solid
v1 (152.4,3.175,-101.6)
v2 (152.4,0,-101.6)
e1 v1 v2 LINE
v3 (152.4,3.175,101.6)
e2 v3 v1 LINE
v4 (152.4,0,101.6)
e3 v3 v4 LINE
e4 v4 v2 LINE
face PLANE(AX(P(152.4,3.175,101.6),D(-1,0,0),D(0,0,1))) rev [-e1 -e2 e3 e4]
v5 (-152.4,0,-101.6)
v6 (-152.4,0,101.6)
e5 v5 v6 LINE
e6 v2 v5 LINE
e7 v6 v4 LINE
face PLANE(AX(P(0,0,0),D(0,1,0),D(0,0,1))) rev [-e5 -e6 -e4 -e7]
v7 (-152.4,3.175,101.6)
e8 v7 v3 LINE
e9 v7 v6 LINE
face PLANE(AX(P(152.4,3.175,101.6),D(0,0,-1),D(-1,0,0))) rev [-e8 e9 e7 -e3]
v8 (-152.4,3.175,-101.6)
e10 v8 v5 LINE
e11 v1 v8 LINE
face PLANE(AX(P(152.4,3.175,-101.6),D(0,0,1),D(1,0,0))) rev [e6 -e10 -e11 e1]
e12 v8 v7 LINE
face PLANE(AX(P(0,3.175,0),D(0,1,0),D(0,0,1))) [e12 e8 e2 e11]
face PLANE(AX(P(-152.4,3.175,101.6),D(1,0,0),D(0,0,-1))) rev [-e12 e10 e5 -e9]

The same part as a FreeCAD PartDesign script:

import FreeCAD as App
import Part
import Sketcher

V = App.Vector
Q = App.Units.Quantity

doc = App.newDocument("Part")
body = doc.addObject("PartDesign::Body", "Body")

# Sketch on XZ plane
sketch1 = body.newObject("Sketcher::SketchObject", "Sketch")
sketch1.AttachmentSupport = (doc.getObject("XZ_Plane"), [""])
sketch1.MapMode = "FlatFace"
sketch1.addGeometry(Part.LineSegment(V(-152, -102, 0), V(-152, 102, 0)), False)
sketch1.addGeometry(Part.LineSegment(V(-152, 102, 0), V(152, 102, 0)), False)
sketch1.addGeometry(Part.LineSegment(V(152, 102, 0), V(152, -102, 0)), False)
sketch1.addGeometry(Part.LineSegment(V(152, -102, 0), V(-152, -102, 0)), False)
sketch1.addConstraint(Sketcher.Constraint("Coincident", 0, 2, 1, 1))
sketch1.addConstraint(Sketcher.Constraint("Coincident", 1, 2, 2, 1))
sketch1.addConstraint(Sketcher.Constraint("Coincident", 2, 2, 3, 1))
sketch1.addConstraint(Sketcher.Constraint("Coincident", 3, 2, 0, 1))
sketch1.addConstraint(Sketcher.Constraint("Vertical", 0))
sketch1.addConstraint(Sketcher.Constraint("Horizontal", 1))
sketch1.addConstraint(Sketcher.Constraint("Vertical", 2))
sketch1.addConstraint(Sketcher.Constraint("Horizontal", 3))
sketch1.addConstraint(Sketcher.Constraint("Symmetric", 0, 2, 2, 2, -1, 1))
sketch1.addConstraint(Sketcher.Constraint("DistanceX", 1, 1, 1, 2, Q("12 in")))
sketch1.addConstraint(Sketcher.Constraint("DistanceY", 0, 1, 0, 2, Q("8 in")))
pad1 = body.newObject("PartDesign::Pad", "Pad")
pad1.Profile = sketch1
pad1.Length = Q("0.125 in")
pad1.Reversed = True

doc.recompute()
